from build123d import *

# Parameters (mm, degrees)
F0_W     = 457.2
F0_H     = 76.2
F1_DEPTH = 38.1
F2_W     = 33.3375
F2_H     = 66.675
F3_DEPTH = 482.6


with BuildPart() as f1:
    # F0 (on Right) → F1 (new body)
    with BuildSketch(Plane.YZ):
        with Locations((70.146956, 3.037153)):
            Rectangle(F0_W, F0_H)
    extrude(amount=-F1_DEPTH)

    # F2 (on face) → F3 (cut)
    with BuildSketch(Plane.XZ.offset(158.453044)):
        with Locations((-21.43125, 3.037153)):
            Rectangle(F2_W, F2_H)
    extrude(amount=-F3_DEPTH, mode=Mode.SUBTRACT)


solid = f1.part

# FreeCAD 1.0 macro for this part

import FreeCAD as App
import Part
import Sketcher
Q = App.Units.Quantity

doc = App.newDocument("Part")
body = doc.addObject("PartDesign::Body", "Body")

# Sketch on YZ plane
sketch1 = body.newObject("Sketcher::SketchObject", "Sketch")
sketch1.AttachmentSupport = (doc.getObject("YZ_Plane"), [""])
sketch1.MapMode = "FlatFace"
sketch1.addGeometry(Part.LineSegment(App.Vector(-158, 41, 0), App.Vector(-158, -35, 0)), False)
sketch1.addGeometry(Part.LineSegment(App.Vector(-158, -35, 0), App.Vector(299, -35, 0)), False)
sketch1.addGeometry(Part.LineSegment(App.Vector(299, -35, 0), App.Vector(299, 41, 0)), False)
sketch1.addGeometry(Part.LineSegment(App.Vector(299, 41, 0), App.Vector(-158, 41, 0)), False)
sketch1.addConstraint(Sketcher.Constraint("Coincident", 0, 2, 1, 1))
sketch1.addConstraint(Sketcher.Constraint("Coincident", 1, 2, 2, 1))
sketch1.addConstraint(Sketcher.Constraint("Coincident", 2, 2, 3, 1))
sketch1.addConstraint(Sketcher.Constraint("Coincident", 3, 2, 0, 1))
sketch1.addConstraint(Sketcher.Constraint("Vertical", 0))
sketch1.addConstraint(Sketcher.Constraint("Horizontal", 1))
sketch1.addConstraint(Sketcher.Constraint("Vertical", 2))
sketch1.addConstraint(Sketcher.Constraint("Horizontal", 3))
sketch1.addConstraint(Sketcher.Constraint("DistanceX", 1, 1, 1, 2, Q("18 in")))
sketch1.addConstraint(Sketcher.Constraint("DistanceY", 0, 2, 0, 1, Q("3 in")))
sketch1.addConstraint(Sketcher.Constraint("DistanceX", 0, 2, -1, 1, 158.453044))
sketch1.addConstraint(Sketcher.Constraint("DistanceY", 0, 2, -1, 1, 35.062847))
pad1 = body.newObject("PartDesign::Pad", "Pad")
pad1.Profile = sketch1
pad1.Length = Q("1.5 in")
pad1.Reversed = True

# Sketch on XZ plane
sketch2 = body.newObject("Sketcher::SketchObject", "Sketch001")
sketch2.AttachmentSupport = (doc.getObject("XZ_Plane"), [""])
sketch2.MapMode = "FlatFace"
sketch2.AttachmentOffset = App.Placement(App.Vector(0, 0, 158.453044), App.Rotation())
sketch2.addGeometry(Part.LineSegment(App.Vector(-38, 36, 0), App.Vector(-38, -30, 0)), False)
sketch2.addGeometry(Part.LineSegment(App.Vector(-38, -30, 0), App.Vector(-5, -30, 0)), False)
sketch2.addGeometry(Part.LineSegment(App.Vector(-5, -30, 0), App.Vector(-5, 36, 0)), False)
sketch2.addGeometry(Part.LineSegment(App.Vector(-5, 36, 0), App.Vector(-38, 36, 0)), False)
sketch2.addConstraint(Sketcher.Constraint("Coincident", 0, 2, 1, 1))
sketch2.addConstraint(Sketcher.Constraint("Coincident", 1, 2, 2, 1))
sketch2.addConstraint(Sketcher.Constraint("Coincident", 2, 2, 3, 1))
sketch2.addConstraint(Sketcher.Constraint("Coincident", 3, 2, 0, 1))
sketch2.addConstraint(Sketcher.Constraint("Vertical", 0))
sketch2.addConstraint(Sketcher.Constraint("Horizontal", 1))
sketch2.addConstraint(Sketcher.Constraint("Vertical", 2))
sketch2.addConstraint(Sketcher.Constraint("Horizontal", 3))
sketch2.addConstraint(Sketcher.Constraint("DistanceX", 0, 2, -1, 1, Q("1.5 in")))
sketch2.addConstraint(Sketcher.Constraint("DistanceX", 1, 1, 1, 2, Q("1.3125 in")))
sketch2.addConstraint(Sketcher.Constraint("DistanceY", 0, 2, 0, 1, Q("2.625 in")))
sketch2.addConstraint(Sketcher.Constraint("DistanceY", 0, 2, -1, 1, 30.300347))
pocket1 = body.newObject("PartDesign::Pocket", "Pocket")
pocket1.Profile = sketch2
pocket1.Length = Q("19 in")

doc.recompute()
